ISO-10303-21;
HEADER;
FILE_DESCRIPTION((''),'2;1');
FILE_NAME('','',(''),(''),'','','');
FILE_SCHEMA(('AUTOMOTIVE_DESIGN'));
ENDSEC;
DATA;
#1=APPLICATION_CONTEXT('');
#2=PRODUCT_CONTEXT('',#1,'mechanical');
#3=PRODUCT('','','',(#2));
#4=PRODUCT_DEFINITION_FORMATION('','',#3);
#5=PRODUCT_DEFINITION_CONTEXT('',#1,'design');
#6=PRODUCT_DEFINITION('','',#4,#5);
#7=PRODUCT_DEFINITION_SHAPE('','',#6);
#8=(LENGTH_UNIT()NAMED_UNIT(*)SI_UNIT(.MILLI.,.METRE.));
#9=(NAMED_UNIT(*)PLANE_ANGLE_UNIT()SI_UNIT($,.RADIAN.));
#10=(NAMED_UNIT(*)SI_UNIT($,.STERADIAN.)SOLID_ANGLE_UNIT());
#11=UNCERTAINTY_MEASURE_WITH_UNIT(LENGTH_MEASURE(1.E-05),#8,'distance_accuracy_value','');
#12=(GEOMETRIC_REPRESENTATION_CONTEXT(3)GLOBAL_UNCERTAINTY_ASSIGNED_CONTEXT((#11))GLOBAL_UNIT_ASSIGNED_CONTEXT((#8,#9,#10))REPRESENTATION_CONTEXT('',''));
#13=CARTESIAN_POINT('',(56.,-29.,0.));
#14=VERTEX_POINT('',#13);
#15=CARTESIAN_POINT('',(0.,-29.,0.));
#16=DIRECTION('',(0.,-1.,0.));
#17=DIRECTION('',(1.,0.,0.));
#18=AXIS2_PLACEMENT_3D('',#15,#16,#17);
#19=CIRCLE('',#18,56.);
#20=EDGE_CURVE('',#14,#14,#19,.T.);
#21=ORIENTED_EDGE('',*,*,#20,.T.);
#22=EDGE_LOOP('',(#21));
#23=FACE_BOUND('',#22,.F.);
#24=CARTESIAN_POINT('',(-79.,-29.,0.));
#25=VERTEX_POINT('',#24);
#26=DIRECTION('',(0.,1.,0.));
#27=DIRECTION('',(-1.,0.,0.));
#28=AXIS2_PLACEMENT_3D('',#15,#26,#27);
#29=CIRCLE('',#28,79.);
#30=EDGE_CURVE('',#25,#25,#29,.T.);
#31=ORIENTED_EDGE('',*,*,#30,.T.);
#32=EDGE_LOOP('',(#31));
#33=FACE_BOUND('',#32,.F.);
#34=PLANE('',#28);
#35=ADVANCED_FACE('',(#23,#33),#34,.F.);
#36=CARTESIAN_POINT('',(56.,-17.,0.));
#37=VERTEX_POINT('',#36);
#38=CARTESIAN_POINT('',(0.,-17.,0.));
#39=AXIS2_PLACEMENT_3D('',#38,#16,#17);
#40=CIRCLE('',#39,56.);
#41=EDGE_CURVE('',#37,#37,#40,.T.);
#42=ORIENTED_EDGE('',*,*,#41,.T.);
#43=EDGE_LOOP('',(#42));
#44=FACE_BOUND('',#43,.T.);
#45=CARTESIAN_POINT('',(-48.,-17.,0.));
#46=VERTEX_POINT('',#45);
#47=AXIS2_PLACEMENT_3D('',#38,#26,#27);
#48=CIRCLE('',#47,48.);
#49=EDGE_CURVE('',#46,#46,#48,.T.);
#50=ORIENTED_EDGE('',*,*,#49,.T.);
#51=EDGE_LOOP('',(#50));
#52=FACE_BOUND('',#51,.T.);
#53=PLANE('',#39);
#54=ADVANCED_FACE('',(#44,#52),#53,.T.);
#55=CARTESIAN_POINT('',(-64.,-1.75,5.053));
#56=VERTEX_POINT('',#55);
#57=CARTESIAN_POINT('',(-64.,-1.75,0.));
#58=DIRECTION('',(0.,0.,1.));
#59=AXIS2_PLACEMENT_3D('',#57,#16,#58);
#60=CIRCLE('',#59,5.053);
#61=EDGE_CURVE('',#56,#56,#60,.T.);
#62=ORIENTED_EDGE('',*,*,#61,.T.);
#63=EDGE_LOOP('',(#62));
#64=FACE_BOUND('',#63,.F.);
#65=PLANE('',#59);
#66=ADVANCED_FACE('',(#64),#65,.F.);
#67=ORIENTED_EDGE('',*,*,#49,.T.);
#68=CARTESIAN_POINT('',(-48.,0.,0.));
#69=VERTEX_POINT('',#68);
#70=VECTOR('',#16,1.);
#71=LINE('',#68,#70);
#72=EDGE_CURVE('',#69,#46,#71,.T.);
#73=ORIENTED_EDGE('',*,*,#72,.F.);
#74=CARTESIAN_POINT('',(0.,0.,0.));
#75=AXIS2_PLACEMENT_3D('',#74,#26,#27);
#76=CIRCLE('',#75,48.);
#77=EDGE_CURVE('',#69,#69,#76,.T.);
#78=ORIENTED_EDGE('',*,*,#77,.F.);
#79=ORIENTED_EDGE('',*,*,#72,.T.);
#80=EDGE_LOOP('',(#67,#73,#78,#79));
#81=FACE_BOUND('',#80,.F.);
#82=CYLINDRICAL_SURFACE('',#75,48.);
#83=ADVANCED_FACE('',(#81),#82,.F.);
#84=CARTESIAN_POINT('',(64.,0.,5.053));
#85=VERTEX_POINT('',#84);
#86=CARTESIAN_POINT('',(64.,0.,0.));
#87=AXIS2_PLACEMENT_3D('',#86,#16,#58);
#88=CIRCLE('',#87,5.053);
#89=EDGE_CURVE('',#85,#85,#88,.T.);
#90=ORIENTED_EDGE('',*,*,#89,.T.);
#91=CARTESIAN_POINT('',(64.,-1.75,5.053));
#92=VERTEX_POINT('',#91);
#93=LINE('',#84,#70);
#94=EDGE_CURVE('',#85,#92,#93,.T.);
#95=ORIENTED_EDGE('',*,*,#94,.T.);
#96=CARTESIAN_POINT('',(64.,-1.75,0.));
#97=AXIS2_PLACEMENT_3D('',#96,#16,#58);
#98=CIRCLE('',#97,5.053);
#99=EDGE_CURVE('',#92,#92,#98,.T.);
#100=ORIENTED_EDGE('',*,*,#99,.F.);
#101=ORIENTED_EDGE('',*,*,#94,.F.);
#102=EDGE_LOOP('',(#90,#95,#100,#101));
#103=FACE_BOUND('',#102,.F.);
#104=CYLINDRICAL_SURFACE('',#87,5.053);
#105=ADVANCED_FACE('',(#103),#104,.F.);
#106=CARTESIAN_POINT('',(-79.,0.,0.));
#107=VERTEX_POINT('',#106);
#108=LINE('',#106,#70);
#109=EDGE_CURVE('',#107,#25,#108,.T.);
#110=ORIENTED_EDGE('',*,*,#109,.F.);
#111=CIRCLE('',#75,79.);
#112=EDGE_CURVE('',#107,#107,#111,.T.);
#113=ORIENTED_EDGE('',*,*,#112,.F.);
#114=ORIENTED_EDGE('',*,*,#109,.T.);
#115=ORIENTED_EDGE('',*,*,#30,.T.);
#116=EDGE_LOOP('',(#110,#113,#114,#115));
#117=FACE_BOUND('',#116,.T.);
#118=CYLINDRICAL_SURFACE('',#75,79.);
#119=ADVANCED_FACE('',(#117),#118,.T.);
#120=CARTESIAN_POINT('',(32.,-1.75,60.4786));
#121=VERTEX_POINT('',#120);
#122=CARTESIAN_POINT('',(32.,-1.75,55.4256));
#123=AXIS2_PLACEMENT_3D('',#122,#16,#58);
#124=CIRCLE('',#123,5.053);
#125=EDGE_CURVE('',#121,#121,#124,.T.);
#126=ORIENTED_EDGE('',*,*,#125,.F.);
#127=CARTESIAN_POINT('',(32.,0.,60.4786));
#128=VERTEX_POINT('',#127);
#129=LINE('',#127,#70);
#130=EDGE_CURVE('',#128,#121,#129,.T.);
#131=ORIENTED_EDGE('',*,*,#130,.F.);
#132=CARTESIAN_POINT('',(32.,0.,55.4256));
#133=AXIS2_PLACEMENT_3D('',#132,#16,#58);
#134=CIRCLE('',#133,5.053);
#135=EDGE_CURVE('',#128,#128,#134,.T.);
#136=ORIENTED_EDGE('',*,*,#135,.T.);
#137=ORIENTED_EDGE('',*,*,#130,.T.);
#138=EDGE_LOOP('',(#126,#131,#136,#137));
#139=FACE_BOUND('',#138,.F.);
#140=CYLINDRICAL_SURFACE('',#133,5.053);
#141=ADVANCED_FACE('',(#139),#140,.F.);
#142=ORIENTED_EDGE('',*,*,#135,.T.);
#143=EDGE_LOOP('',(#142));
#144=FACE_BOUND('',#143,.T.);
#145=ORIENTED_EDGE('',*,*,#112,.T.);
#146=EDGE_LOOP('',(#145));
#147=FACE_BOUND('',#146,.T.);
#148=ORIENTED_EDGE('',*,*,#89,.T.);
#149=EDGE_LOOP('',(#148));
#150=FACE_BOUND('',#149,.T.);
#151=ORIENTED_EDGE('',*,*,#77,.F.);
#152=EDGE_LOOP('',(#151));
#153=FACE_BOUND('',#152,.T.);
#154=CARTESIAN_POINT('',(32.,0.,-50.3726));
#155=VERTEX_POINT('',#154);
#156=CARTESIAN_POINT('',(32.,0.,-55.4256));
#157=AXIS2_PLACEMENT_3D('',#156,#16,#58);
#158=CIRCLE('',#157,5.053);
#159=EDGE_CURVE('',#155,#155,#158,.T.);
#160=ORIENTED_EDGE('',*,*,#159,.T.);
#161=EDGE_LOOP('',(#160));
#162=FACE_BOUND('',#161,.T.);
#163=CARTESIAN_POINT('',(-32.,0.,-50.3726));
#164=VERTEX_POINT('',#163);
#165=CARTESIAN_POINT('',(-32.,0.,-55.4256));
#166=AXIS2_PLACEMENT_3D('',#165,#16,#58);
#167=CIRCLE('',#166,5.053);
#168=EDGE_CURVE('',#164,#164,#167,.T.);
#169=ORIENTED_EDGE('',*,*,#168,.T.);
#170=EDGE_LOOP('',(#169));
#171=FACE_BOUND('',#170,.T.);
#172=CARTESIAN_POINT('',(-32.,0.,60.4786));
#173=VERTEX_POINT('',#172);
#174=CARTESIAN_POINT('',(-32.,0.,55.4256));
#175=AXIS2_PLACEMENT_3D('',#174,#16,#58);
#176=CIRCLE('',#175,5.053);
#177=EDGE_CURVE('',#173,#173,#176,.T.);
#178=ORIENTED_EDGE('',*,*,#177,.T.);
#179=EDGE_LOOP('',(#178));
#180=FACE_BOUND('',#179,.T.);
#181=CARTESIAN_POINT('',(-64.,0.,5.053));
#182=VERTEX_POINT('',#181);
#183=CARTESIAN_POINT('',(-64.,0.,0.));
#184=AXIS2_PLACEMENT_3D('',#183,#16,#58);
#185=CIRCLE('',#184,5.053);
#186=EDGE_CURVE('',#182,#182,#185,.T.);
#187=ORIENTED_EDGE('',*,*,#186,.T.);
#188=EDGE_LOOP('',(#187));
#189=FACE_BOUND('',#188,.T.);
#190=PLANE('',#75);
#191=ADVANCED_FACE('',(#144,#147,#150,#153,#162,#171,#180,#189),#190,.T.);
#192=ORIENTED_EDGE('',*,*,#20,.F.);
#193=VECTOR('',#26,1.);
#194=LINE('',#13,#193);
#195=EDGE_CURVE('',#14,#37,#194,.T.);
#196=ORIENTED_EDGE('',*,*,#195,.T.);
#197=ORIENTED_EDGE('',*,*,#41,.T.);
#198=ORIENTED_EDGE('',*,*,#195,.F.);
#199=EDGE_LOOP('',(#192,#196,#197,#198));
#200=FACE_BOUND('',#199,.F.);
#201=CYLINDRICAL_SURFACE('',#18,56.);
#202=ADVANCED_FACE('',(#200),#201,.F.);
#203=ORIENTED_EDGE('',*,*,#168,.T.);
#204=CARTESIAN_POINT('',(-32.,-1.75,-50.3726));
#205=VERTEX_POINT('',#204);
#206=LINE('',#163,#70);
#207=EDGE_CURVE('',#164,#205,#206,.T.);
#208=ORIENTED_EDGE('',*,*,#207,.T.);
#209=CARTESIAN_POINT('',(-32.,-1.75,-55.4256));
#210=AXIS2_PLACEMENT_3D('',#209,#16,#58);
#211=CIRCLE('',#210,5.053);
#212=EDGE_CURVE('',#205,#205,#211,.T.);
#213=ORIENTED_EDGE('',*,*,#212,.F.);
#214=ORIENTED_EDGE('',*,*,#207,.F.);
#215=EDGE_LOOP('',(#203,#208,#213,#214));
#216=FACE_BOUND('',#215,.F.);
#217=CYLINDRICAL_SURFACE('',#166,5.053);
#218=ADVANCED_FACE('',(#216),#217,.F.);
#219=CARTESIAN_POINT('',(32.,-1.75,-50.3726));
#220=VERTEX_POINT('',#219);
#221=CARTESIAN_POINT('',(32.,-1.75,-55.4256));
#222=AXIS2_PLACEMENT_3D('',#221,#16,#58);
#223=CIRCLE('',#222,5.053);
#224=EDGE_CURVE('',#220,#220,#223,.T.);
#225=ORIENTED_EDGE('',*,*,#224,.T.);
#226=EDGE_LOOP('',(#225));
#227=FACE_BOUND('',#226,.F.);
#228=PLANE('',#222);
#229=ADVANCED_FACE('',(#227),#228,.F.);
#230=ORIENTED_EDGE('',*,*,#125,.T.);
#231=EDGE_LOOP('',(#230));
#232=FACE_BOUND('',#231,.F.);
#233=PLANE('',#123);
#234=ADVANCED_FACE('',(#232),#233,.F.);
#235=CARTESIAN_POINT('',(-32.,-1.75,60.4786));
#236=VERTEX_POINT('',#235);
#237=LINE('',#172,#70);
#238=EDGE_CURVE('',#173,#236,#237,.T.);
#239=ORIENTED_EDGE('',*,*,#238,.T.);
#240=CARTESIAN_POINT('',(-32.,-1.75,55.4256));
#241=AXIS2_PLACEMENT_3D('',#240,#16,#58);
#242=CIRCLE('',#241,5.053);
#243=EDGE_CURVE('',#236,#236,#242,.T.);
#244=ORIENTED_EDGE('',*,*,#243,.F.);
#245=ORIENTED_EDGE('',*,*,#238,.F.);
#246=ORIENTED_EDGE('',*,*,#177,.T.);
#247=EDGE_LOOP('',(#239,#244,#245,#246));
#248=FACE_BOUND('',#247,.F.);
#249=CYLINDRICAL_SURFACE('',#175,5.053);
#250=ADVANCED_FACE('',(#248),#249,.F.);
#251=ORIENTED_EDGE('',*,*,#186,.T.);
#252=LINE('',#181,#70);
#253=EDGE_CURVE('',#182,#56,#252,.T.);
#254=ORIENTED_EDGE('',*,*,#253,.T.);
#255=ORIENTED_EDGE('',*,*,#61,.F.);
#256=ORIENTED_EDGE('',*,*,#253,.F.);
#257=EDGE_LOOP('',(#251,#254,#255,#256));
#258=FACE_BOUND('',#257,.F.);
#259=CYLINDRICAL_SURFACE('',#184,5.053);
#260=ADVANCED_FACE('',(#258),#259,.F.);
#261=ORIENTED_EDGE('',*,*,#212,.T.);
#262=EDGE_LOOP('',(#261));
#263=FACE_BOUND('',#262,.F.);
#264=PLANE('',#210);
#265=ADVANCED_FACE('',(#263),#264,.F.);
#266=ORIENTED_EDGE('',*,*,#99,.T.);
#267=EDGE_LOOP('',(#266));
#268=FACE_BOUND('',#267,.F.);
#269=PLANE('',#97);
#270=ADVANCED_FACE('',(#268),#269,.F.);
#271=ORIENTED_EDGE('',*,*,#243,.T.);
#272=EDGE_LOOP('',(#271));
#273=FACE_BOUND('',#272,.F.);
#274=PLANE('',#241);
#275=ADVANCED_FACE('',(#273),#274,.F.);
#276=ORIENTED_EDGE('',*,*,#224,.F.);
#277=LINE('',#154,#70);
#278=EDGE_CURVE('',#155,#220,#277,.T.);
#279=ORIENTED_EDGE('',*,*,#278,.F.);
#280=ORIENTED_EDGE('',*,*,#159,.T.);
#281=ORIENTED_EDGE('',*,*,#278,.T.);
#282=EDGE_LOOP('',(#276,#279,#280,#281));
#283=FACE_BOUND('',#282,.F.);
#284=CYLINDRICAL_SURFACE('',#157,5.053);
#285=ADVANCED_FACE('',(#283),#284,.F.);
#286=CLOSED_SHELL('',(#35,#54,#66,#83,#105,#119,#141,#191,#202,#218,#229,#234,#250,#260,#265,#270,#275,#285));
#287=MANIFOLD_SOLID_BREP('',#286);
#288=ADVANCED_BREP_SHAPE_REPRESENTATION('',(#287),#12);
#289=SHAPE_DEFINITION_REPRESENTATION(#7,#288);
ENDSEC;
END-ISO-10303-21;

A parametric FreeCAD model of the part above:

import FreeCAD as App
import Part
import Sketcher
from FreeCAD import Vector
Q = App.Units.Quantity

doc = App.newDocument("Part")
body = doc.addObject("PartDesign::Body", "Body")

# Sketch on XZ plane
sketch1 = doc.addObject("Sketcher::SketchObject", "Sketch")
body.addObject(sketch1)
sketch1.AttachmentSupport = (doc.XZ_Plane, [""])
sketch1.MapMode = "FlatFace"
sketch1.addGeometry(Part.Circle(Vector(0, 0, 0), Vector(0, 0, 1), 79), False)
sketch1.addGeometry(Part.Circle(Vector(0, 0, 0), Vector(0, 0, 1), 48), False)
sketch1.addConstraint(Sketcher.Constraint("Coincident", 0, 3, -1, 1))
sketch1.addConstraint(Sketcher.Constraint("Coincident", 1, 3, -1, 1))
sketch1.addConstraint(Sketcher.Constraint("Diameter", 0, Q("158 mm")))
sketch1.addConstraint(Sketcher.Constraint("Diameter", 1, Q("96 mm")))
pad1 = doc.addObject("PartDesign::Pad", "Pad")
body.addObject(pad1)
pad1.Profile = sketch1
pad1.Length = 29

# Sketch on XZ plane
sketch2 = doc.addObject("Sketcher::SketchObject", "Sketch001")
body.addObject(sketch2)
sketch2.AttachmentSupport = (doc.XZ_Plane, [""])
sketch2.MapMode = "FlatFace"
sketch2.AttachmentOffset = App.Placement(Vector(0, 0, 29), App.Rotation())
sketch2.addGeometry(Part.Circle(Vector(0, 0, 0), Vector(0, 0, 1), 56), False)
sketch2.addConstraint(Sketcher.Constraint("Coincident", 0, 3, -1, 1))
sketch2.addConstraint(Sketcher.Constraint("Diameter", 0, Q("112 mm")))
pocket1 = doc.addObject("PartDesign::Pocket", "Pocket")
body.addObject(pocket1)
pocket1.Profile = sketch2
pocket1.Length = 12

# Sketch on XZ plane
sketch3 = doc.addObject("Sketcher::SketchObject", "Sketch002")
body.addObject(sketch3)
sketch3.AttachmentSupport = (doc.XZ_Plane, [""])
sketch3.MapMode = "FlatFace"
sketch3.addGeometry(Part.Circle(Vector(64, 0, 0), Vector(0, 0, 1), 5), False)
sketch3.addGeometry(Part.Circle(Vector(32, -55, 0), Vector(0, 0, 1), 5), False)
sketch3.addGeometry(Part.Circle(Vector(-32, -55, 0), Vector(0, 0, 1), 5), False)
sketch3.addGeometry(Part.Circle(Vector(-64, 0, 0), Vector(0, 0, 1), 5), False)
sketch3.addGeometry(Part.Circle(Vector(-32, 55, 0), Vector(0, 0, 1), 5), False)
sketch3.addGeometry(Part.Circle(Vector(32, 55, 0), Vector(0, 0, 1), 5), False)
sketch3.addConstraint(Sketcher.Constraint("Equal", 0, 1))
sketch3.addConstraint(Sketcher.Constraint("Equal", 1, 2))
sketch3.addConstraint(Sketcher.Constraint("Equal", 2, 3))
sketch3.addConstraint(Sketcher.Constraint("Equal", 3, 4))
sketch3.addConstraint(Sketcher.Constraint("Equal", 4, 5))
sketch3.addConstraint(Sketcher.Constraint("Symmetric", 0, 3, 3, 3, -1, 1))
sketch3.addConstraint(Sketcher.Constraint("Symmetric", 1, 3, 4, 3, -1, 1))
sketch3.addConstraint(Sketcher.Constraint("Symmetric", 2, 3, 5, 3, -1, 1))
sketch3.addConstraint(Sketcher.Constraint("Symmetric", 1, 3, 2, 3, -2))
sketch3.addConstraint(Sketcher.Constraint("PointOnObject", 0, 3, -1))
sketch3.addConstraint(Sketcher.Constraint("Diameter", 0, Q("10.106 mm")))
sketch3.addConstraint(Sketcher.Constraint("DistanceX", -1, 1, 0, 3, Q("64 mm")))
sketch3.addConstraint(Sketcher.Constraint("DistanceX", -1, 1, 1, 3, Q("32 mm")))
sketch3.addConstraint(Sketcher.Constraint("DistanceY", 1, 3, -1, 1, Q("55.4256 mm")))
doc.recompute()
hole = doc.addObject("PartDesign::Hole", "Hole")
body.addObject(hole)
hole.Profile = sketch3
hole.ThreadType = "None"
hole.Diameter = 10.106
hole.DepthType = "Dimension"
hole.Depth = 1.75
hole.DrillPoint = "Flat"
hole.Reversed = True

doc.recompute()
